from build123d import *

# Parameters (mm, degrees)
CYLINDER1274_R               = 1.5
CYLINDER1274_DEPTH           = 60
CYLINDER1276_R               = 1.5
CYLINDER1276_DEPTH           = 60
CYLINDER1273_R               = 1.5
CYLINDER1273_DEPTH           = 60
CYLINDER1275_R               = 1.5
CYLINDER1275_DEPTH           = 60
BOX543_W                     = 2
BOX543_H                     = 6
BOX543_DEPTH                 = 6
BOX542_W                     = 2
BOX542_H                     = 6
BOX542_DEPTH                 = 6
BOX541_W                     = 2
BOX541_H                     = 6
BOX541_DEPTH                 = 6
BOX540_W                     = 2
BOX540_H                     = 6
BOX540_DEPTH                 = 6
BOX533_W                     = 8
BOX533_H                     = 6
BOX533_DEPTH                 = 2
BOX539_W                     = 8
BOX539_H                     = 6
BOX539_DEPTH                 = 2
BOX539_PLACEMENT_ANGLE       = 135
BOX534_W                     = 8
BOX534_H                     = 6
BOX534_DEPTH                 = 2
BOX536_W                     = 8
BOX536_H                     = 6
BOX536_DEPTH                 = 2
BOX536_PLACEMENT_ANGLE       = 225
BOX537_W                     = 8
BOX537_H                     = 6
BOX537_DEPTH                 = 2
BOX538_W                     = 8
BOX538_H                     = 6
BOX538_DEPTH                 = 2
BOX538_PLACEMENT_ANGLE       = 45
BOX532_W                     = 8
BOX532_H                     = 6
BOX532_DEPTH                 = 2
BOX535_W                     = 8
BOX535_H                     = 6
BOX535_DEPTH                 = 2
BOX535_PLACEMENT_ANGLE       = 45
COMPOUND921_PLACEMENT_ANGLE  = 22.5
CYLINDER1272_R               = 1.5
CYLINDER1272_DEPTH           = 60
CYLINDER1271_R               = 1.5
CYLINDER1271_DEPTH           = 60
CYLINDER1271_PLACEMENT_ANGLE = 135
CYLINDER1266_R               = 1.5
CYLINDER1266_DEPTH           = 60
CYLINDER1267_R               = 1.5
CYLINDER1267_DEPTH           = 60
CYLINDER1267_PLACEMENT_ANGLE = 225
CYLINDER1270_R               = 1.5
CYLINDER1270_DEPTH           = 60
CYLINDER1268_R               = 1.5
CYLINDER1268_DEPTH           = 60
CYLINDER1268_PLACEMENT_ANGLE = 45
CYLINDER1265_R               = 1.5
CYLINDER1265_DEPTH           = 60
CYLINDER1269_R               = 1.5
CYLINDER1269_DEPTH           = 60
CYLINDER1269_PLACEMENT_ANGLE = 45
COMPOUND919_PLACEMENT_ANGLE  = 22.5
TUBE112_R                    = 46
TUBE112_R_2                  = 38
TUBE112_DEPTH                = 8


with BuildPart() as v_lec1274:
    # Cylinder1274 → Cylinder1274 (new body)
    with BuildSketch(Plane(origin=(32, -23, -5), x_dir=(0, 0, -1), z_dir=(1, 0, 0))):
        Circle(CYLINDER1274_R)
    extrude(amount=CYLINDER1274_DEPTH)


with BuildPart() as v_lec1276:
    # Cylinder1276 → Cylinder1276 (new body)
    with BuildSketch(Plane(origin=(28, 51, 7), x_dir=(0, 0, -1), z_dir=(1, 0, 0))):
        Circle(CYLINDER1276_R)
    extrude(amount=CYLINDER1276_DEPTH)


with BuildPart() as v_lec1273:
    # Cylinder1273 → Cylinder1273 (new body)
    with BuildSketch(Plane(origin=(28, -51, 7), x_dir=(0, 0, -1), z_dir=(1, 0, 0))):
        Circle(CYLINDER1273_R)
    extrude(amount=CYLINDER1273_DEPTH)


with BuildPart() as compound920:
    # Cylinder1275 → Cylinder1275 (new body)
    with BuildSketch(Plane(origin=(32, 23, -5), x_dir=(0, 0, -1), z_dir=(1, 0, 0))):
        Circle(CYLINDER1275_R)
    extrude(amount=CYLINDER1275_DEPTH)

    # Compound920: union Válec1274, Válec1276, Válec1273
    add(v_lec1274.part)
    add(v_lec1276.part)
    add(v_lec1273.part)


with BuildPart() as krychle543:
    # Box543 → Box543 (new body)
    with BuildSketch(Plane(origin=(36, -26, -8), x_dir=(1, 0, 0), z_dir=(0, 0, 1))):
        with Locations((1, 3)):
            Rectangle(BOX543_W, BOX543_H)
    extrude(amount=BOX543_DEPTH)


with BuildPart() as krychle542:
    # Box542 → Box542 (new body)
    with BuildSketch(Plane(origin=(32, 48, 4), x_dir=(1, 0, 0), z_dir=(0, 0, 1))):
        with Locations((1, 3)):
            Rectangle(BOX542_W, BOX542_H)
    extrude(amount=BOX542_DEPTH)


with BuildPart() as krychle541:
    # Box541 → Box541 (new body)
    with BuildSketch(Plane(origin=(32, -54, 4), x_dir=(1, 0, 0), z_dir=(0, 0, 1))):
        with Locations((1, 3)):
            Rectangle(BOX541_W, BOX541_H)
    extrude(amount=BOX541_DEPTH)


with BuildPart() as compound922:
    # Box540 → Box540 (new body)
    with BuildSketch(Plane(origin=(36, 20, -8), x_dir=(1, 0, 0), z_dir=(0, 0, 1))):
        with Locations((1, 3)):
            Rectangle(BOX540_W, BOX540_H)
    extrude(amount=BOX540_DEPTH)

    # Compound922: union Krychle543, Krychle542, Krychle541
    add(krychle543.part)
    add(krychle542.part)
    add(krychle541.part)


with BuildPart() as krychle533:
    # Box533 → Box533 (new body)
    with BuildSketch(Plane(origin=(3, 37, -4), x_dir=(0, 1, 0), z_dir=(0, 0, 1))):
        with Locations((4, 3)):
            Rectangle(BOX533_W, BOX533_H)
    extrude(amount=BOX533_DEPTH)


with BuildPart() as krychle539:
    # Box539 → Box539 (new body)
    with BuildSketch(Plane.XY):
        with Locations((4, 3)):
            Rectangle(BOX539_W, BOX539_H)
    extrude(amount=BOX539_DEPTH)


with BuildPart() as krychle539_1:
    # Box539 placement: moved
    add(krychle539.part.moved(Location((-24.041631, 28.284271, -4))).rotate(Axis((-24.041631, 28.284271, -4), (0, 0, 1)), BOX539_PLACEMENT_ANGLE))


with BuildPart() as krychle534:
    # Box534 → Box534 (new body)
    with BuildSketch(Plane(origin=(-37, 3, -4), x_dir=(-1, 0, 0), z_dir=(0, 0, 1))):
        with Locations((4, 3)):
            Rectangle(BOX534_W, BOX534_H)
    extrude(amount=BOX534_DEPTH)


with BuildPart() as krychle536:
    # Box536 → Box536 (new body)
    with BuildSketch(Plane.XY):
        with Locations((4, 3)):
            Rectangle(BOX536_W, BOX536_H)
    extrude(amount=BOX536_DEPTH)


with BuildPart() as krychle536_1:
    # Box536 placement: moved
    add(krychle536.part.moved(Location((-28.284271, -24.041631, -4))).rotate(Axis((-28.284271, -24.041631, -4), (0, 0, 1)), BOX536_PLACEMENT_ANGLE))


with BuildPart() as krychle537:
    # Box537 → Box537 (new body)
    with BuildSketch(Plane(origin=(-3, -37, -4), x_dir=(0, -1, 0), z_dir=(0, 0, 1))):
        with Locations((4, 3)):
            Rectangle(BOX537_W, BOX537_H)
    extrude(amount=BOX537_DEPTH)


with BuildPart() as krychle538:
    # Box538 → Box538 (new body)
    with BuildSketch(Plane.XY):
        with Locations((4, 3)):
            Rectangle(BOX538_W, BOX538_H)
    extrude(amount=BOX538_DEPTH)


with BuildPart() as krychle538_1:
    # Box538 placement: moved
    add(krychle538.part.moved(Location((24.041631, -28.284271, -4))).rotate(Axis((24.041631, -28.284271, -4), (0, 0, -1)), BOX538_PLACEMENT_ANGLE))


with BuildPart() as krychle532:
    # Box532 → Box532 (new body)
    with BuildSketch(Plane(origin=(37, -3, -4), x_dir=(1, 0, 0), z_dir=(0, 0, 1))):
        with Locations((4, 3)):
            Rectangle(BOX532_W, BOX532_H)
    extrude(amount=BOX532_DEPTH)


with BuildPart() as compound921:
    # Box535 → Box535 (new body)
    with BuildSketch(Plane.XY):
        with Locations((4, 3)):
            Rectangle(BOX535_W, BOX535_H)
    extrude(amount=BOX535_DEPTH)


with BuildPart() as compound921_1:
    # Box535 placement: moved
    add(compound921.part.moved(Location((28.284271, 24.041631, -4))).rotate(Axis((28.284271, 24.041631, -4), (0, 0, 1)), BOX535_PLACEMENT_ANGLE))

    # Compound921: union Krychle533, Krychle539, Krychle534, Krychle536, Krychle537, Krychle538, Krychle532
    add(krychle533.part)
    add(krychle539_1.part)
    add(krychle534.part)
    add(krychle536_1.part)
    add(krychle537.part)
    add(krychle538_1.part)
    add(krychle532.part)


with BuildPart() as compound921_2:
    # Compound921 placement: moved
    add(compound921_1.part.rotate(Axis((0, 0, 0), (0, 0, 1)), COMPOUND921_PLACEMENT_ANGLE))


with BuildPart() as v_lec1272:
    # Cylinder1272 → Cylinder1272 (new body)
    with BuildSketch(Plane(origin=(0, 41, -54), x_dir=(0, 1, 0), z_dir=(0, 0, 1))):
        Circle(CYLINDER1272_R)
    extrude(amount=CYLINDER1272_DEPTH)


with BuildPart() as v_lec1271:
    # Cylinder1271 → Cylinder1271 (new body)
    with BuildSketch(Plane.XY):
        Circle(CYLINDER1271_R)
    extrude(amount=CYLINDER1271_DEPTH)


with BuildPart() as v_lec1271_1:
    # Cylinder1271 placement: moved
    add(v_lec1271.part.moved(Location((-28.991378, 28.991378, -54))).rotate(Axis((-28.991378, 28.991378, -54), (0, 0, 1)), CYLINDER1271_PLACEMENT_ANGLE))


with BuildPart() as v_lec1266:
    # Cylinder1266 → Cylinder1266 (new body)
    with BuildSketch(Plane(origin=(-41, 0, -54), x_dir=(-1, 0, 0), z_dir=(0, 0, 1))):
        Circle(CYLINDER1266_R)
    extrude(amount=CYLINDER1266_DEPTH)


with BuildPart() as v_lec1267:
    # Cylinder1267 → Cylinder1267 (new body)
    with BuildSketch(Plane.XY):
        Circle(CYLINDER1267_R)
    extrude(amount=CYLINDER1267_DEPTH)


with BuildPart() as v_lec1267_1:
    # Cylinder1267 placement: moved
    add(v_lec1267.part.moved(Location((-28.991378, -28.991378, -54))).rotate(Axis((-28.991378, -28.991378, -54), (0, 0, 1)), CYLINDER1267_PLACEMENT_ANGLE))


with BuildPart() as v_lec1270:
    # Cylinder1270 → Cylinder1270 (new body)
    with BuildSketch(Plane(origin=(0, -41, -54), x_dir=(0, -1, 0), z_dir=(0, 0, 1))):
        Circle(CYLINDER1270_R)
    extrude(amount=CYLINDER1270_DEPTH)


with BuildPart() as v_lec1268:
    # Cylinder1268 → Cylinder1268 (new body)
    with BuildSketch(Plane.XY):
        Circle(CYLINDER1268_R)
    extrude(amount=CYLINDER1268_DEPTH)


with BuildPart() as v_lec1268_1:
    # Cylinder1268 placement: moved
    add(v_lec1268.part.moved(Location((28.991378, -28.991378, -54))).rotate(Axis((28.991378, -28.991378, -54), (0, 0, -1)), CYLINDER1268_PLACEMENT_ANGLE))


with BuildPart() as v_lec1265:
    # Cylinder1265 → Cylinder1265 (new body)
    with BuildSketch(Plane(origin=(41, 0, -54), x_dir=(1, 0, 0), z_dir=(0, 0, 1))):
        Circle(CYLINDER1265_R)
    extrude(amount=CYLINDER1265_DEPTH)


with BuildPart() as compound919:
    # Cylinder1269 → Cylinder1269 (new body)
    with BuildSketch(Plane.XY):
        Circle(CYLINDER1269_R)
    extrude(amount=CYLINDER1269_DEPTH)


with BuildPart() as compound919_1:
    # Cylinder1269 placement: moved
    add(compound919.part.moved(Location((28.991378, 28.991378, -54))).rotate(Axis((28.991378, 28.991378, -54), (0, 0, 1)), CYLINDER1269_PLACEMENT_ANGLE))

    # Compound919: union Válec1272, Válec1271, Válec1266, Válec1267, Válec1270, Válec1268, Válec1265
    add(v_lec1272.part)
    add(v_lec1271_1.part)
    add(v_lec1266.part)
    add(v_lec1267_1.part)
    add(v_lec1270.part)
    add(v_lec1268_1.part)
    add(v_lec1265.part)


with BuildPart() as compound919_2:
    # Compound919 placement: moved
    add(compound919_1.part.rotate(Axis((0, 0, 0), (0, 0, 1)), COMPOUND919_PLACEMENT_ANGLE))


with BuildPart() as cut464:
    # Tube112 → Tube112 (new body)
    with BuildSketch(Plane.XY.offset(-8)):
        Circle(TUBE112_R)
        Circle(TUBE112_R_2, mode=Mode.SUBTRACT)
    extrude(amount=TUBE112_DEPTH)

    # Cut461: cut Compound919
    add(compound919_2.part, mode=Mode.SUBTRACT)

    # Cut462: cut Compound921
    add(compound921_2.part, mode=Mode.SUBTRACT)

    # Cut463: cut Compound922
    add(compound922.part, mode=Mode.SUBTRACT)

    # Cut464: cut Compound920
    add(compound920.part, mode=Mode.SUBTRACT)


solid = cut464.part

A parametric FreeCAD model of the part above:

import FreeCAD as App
import Part
import Sketcher

doc = App.newDocument("Part")
body = doc.addObject("PartDesign::Body", "Body")

# Sketch on YZ plane
sketch1 = body.newObject("Sketcher::SketchObject", "Sketch")
sketch1.AttachmentSupport = (doc.getObject("YZ_Plane"), [""])
sketch1.MapMode = "FlatFace"
sketch1.AttachmentOffset = App.Placement(App.Vector(0, 0, 32), App.Rotation())
sketch1.addGeometry(Part.Circle(App.Vector(-23, -5, 0), App.Vector(0, 0, 1), 1.5), False)
sketch1.addConstraint([
    Sketcher.Constraint("Diameter", 0, 3.0),
    Sketcher.Constraint("DistanceX", 0, 3, -1, 1, 23.0),
    Sketcher.Constraint("DistanceY", 0, 3, -1, 1, 5.0),
])
pad1 = body.newObject("PartDesign::Pad", "Pad")
pad1.Profile = sketch1
pad1.Length = 60
body2 = doc.addObject("PartDesign::Body", "Body001")

# Sketch on YZ plane
sketch2 = body2.newObject("Sketcher::SketchObject", "Sketch001")
sketch2.AttachmentSupport = (doc.getObject("YZ_Plane001"), [""])
sketch2.MapMode = "FlatFace"
sketch2.AttachmentOffset = App.Placement(App.Vector(0, 0, 28), App.Rotation())
sketch2.addGeometry(Part.Circle(App.Vector(51, 7, 0), App.Vector(0, 0, 1), 1.5), False)
sketch2.addConstraint([
    Sketcher.Constraint("Diameter", 0, 3.0),
    Sketcher.Constraint("DistanceX", -1, 1, 0, 3, 51.0),
    Sketcher.Constraint("DistanceY", -1, 1, 0, 3, 7.0),
])
pad2 = body2.newObject("PartDesign::Pad", "Pad001")
pad2.Profile = sketch2
pad2.Length = 60
body3 = doc.addObject("PartDesign::Body", "Body002")

# Sketch on YZ plane
sketch3 = body3.newObject("Sketcher::SketchObject", "Sketch002")
sketch3.AttachmentSupport = (doc.getObject("YZ_Plane002"), [""])
sketch3.MapMode = "FlatFace"
sketch3.AttachmentOffset = App.Placement(App.Vector(0, 0, 28), App.Rotation())
sketch3.addGeometry(Part.Circle(App.Vector(-51, 7, 0), App.Vector(0, 0, 1), 1.5), False)
sketch3.addConstraint([
    Sketcher.Constraint("Diameter", 0, 3.0),
    Sketcher.Constraint("DistanceX", 0, 3, -1, 1, 51.0),
    Sketcher.Constraint("DistanceY", -1, 1, 0, 3, 7.0),
])
pad3 = body3.newObject("PartDesign::Pad", "Pad002")
pad3.Profile = sketch3
pad3.Length = 60
body4 = doc.addObject("PartDesign::Body", "Body003")
body4.AllowCompound = True

# Sketch on YZ plane
sketch4 = body4.newObject("Sketcher::SketchObject", "Sketch003")
sketch4.AttachmentSupport = (doc.getObject("YZ_Plane003"), [""])
sketch4.MapMode = "FlatFace"
sketch4.AttachmentOffset = App.Placement(App.Vector(0, 0, 32), App.Rotation())
sketch4.addGeometry(Part.Circle(App.Vector(23, -5, 0), App.Vector(0, 0, 1), 1.5), False)
sketch4.addConstraint([
    Sketcher.Constraint("Diameter", 0, 3.0),
    Sketcher.Constraint("DistanceX", -1, 1, 0, 3, 23.0),
    Sketcher.Constraint("DistanceY", 0, 3, -1, 1, 5.0),
])
pad4 = body4.newObject("PartDesign::Pad", "Pad003")
pad4.Profile = sketch4
pad4.Length = 60
doc.recompute()

boolean = body4.newObject("PartDesign::Boolean", "Boolean")
boolean.Type = "Fuse"
boolean.addObjects([body])
doc.recompute()

boolean2 = body4.newObject("PartDesign::Boolean", "Boolean001")
boolean2.Type = "Fuse"
boolean2.addObjects([body2])
doc.recompute()

boolean3 = body4.newObject("PartDesign::Boolean", "Boolean002")
boolean3.Type = "Fuse"
boolean3.addObjects([body3])
body5 = doc.addObject("PartDesign::Body", "Body004")

# Sketch on XY plane
sketch5 = body5.newObject("Sketcher::SketchObject", "Sketch004")
sketch5.AttachmentSupport = (doc.getObject("XY_Plane004"), [""])
sketch5.MapMode = "FlatFace"
sketch5.AttachmentOffset = App.Placement(App.Vector(0, 0, -8), App.Rotation())
sketch5.addGeometry([
    Part.LineSegment(App.Vector(36, -20, 0), App.Vector(36, -26, 0)),
    Part.LineSegment(App.Vector(36, -26, 0), App.Vector(38, -26, 0)),
    Part.LineSegment(App.Vector(38, -26, 0), App.Vector(38, -20, 0)),
    Part.LineSegment(App.Vector(38, -20, 0), App.Vector(36, -20, 0)),
], False)
sketch5.addConstraint([
    Sketcher.Constraint("Coincident", 0, 2, 1, 1),
    Sketcher.Constraint("Coincident", 1, 2, 2, 1),
    Sketcher.Constraint("Coincident", 2, 2, 3, 1),
    Sketcher.Constraint("Coincident", 3, 2, 0, 1),
    Sketcher.Constraint("Vertical", 0),
    Sketcher.Constraint("Horizontal", 1),
    Sketcher.Constraint("Vertical", 2),
    Sketcher.Constraint("Horizontal", 3),
    Sketcher.Constraint("DistanceX", 1, 1, 1, 2, 2.0),
    Sketcher.Constraint("DistanceY", 0, 2, 0, 1, 6.0),
    Sketcher.Constraint("DistanceX", -1, 1, 0, 2, 36.0),
    Sketcher.Constraint("DistanceY", 0, 2, -1, 1, 26.0),
])
pad5 = body5.newObject("PartDesign::Pad", "Pad004")
pad5.Profile = sketch5
pad5.Length = 6
body6 = doc.addObject("PartDesign::Body", "Body005")

# Sketch on XY plane
sketch6 = body6.newObject("Sketcher::SketchObject", "Sketch005")
sketch6.AttachmentSupport = (doc.getObject("XY_Plane005"), [""])
sketch6.MapMode = "FlatFace"
sketch6.AttachmentOffset = App.Placement(App.Vector(0, 0, 4), App.Rotation())
sketch6.addGeometry([
    Part.LineSegment(App.Vector(32, 54, 0), App.Vector(32, 48, 0)),
    Part.LineSegment(App.Vector(32, 48, 0), App.Vector(34, 48, 0)),
    Part.LineSegment(App.Vector(34, 48, 0), App.Vector(34, 54, 0)),
    Part.LineSegment(App.Vector(34, 54, 0), App.Vector(32, 54, 0)),
], False)
sketch6.addConstraint([
    Sketcher.Constraint("Coincident", 0, 2, 1, 1),
    Sketcher.Constraint("Coincident", 1, 2, 2, 1),
    Sketcher.Constraint("Coincident", 2, 2, 3, 1),
    Sketcher.Constraint("Coincident", 3, 2, 0, 1),
    Sketcher.Constraint("Vertical", 0),
    Sketcher.Constraint("Horizontal", 1),
    Sketcher.Constraint("Vertical", 2),
    Sketcher.Constraint("Horizontal", 3),
    Sketcher.Constraint("DistanceX", 1, 1, 1, 2, 2.0),
    Sketcher.Constraint("DistanceY", 0, 2, 0, 1, 6.0),
    Sketcher.Constraint("DistanceX", -1, 1, 0, 2, 32.0),
    Sketcher.Constraint("DistanceY", -1, 1, 0, 2, 48.0),
])
pad6 = body6.newObject("PartDesign::Pad", "Pad005")
pad6.Profile = sketch6
pad6.Length = 6
body7 = doc.addObject("PartDesign::Body", "Body006")

# Sketch on XY plane
sketch7 = body7.newObject("Sketcher::SketchObject", "Sketch006")
sketch7.AttachmentSupport = (doc.getObject("XY_Plane006"), [""])
sketch7.MapMode = "FlatFace"
sketch7.AttachmentOffset = App.Placement(App.Vector(0, 0, 4), App.Rotation())
sketch7.addGeometry([
    Part.LineSegment(App.Vector(32, -48, 0), App.Vector(32, -54, 0)),
    Part.LineSegment(App.Vector(32, -54, 0), App.Vector(34, -54, 0)),
    Part.LineSegment(App.Vector(34, -54, 0), App.Vector(34, -48, 0)),
    Part.LineSegment(App.Vector(34, -48, 0), App.Vector(32, -48, 0)),
], False)
sketch7.addConstraint([
    Sketcher.Constraint("Coincident", 0, 2, 1, 1),
    Sketcher.Constraint("Coincident", 1, 2, 2, 1),
    Sketcher.Constraint("Coincident", 2, 2, 3, 1),
    Sketcher.Constraint("Coincident", 3, 2, 0, 1),
    Sketcher.Constraint("Vertical", 0),
    Sketcher.Constraint("Horizontal", 1),
    Sketcher.Constraint("Vertical", 2),
    Sketcher.Constraint("Horizontal", 3),
    Sketcher.Constraint("DistanceX", 1, 1, 1, 2, 2.0),
    Sketcher.Constraint("DistanceY", 0, 2, 0, 1, 6.0),
    Sketcher.Constraint("DistanceX", -1, 1, 0, 2, 32.0),
    Sketcher.Constraint("DistanceY", 0, 2, -1, 1, 54.0),
])
pad7 = body7.newObject("PartDesign::Pad", "Pad006")
pad7.Profile = sketch7
pad7.Length = 6
body8 = doc.addObject("PartDesign::Body", "Body007")
body8.AllowCompound = True

# Sketch on XY plane
sketch8 = body8.newObject("Sketcher::SketchObject", "Sketch007")
sketch8.AttachmentSupport = (doc.getObject("XY_Plane007"), [""])
sketch8.MapMode = "FlatFace"
sketch8.AttachmentOffset = App.Placement(App.Vector(0, 0, -8), App.Rotation())
sketch8.addGeometry([
    Part.LineSegment(App.Vector(36, 26, 0), App.Vector(36, 20, 0)),
    Part.LineSegment(App.Vector(36, 20, 0), App.Vector(38, 20, 0)),
    Part.LineSegment(App.Vector(38, 20, 0), App.Vector(38, 26, 0)),
    Part.LineSegment(App.Vector(38, 26, 0), App.Vector(36, 26, 0)),
], False)
sketch8.addConstraint([
    Sketcher.Constraint("Coincident", 0, 2, 1, 1),
    Sketcher.Constraint("Coincident", 1, 2, 2, 1),
    Sketcher.Constraint("Coincident", 2, 2, 3, 1),
    Sketcher.Constraint("Coincident", 3, 2, 0, 1),
    Sketcher.Constraint("Vertical", 0),
    Sketcher.Constraint("Horizontal", 1),
    Sketcher.Constraint("Vertical", 2),
    Sketcher.Constraint("Horizontal", 3),
    Sketcher.Constraint("DistanceX", 1, 1, 1, 2, 2.0),
    Sketcher.Constraint("DistanceY", 0, 2, 0, 1, 6.0),
    Sketcher.Constraint("DistanceX", -1, 1, 0, 2, 36.0),
    Sketcher.Constraint("DistanceY", -1, 1, 0, 2, 20.0),
])
pad8 = body8.newObject("PartDesign::Pad", "Pad007")
pad8.Profile = sketch8
pad8.Length = 6
doc.recompute()

boolean4 = body8.newObject("PartDesign::Boolean", "Boolean003")
boolean4.Type = "Fuse"
boolean4.addObjects([body5])
doc.recompute()

boolean5 = body8.newObject("PartDesign::Boolean", "Boolean004")
boolean5.Type = "Fuse"
boolean5.addObjects([body6])
doc.recompute()

boolean6 = body8.newObject("PartDesign::Boolean", "Boolean005")
boolean6.Type = "Fuse"
boolean6.addObjects([body7])
body9 = doc.addObject("PartDesign::Body", "Body008")

# Sketch on XY plane
sketch9 = body9.newObject("Sketcher::SketchObject", "Sketch008")
sketch9.AttachmentSupport = (doc.getObject("XY_Plane008"), [""])
sketch9.MapMode = "FlatFace"
sketch9.AttachmentOffset = App.Placement(App.Vector(0, 0, -4), App.Rotation())
sketch9.addGeometry([
    Part.LineSegment(App.Vector(-3, 37, 0), App.Vector(3, 37, 0)),
    Part.LineSegment(App.Vector(3, 37, 0), App.Vector(3, 45, 0)),
    Part.LineSegment(App.Vector(3, 45, 0), App.Vector(-3, 45, 0)),
    Part.LineSegment(App.Vector(-3, 45, 0), App.Vector(-3, 37, 0)),
], False)
sketch9.addConstraint([
    Sketcher.Constraint("Coincident", 0, 2, 1, 1),
    Sketcher.Constraint("Coincident", 1, 2, 2, 1),
    Sketcher.Constraint("Coincident", 2, 2, 3, 1),
    Sketcher.Constraint("Coincident", 3, 2, 0, 1),
    Sketcher.Constraint("Horizontal", 0),
    Sketcher.Constraint("Vertical", 1),
    Sketcher.Constraint("Horizontal", 2),
    Sketcher.Constraint("Vertical", 3),
    Sketcher.Constraint("DistanceX", 0, 1, 0, 2, 6.0),
    Sketcher.Constraint("DistanceY", 1, 1, 1, 2, 8.0),
    Sketcher.Constraint("DistanceX", -1, 1, 0, 2, 3.0),
    Sketcher.Constraint("DistanceY", -1, 1, 0, 2, 37.0),
])
pad9 = body9.newObject("PartDesign::Pad", "Pad008")
pad9.Profile = sketch9
pad9.Length = 2
body10 = doc.addObject("PartDesign::Body", "Body009")

# Sketch on XY plane
sketch10 = body10.newObject("Sketcher::SketchObject", "Sketch009")
sketch10.AttachmentSupport = (doc.getObject("XY_Plane009"), [""])
sketch10.MapMode = "FlatFace"
sketch10.addGeometry([
    Part.LineSegment(App.Vector(0, 6, 0), App.Vector(0, 0, 0)),
    Part.LineSegment(App.Vector(0, 0, 0), App.Vector(8, 0, 0)),
    Part.LineSegment(App.Vector(8, 0, 0), App.Vector(8, 6, 0)),
    Part.LineSegment(App.Vector(8, 6, 0), App.Vector(0, 6, 0)),
], False)
sketch10.addConstraint([
    Sketcher.Constraint("Coincident", 0, 2, 1, 1),
    Sketcher.Constraint("Coincident", 1, 2, 2, 1),
    Sketcher.Constraint("Coincident", 2, 2, 3, 1),
    Sketcher.Constraint("Coincident", 3, 2, 0, 1),
    Sketcher.Constraint("Vertical", 0),
    Sketcher.Constraint("Horizontal", 1),
    Sketcher.Constraint("Vertical", 2),
    Sketcher.Constraint("Horizontal", 3),
    Sketcher.Constraint("Coincident", 0, 2, -1, 1),
    Sketcher.Constraint("DistanceX", 1, 1, 1, 2, 8.0),
    Sketcher.Constraint("DistanceY", 0, 2, 0, 1, 6.0),
])
pad10 = body10.newObject("PartDesign::Pad", "Pad009")
pad10.Profile = sketch10
pad10.Length = 2
body11 = doc.addObject("PartDesign::Body", "Body010")
doc.recompute()

body10.Placement = App.Placement(App.Vector(-24.041631, 28.284271, -4), App.Rotation(App.Vector(0, 0, 1), 135))
boolean7 = body11.newObject("PartDesign::Boolean", "Boolean006")
boolean7.Type = "Fuse"
boolean7.addObjects([body10])
body12 = doc.addObject("PartDesign::Body", "Body011")

# Sketch on XY plane
sketch11 = body12.newObject("Sketcher::SketchObject", "Sketch010")
sketch11.AttachmentSupport = (doc.getObject("XY_Plane011"), [""])
sketch11.MapMode = "FlatFace"
sketch11.AttachmentOffset = App.Placement(App.Vector(0, 0, -4), App.Rotation())
sketch11.addGeometry([
    Part.LineSegment(App.Vector(-37, -3, 0), App.Vector(-37, 3, 0)),
    Part.LineSegment(App.Vector(-37, 3, 0), App.Vector(-45, 3, 0)),
    Part.LineSegment(App.Vector(-45, 3, 0), App.Vector(-45, -3, 0)),
    Part.LineSegment(App.Vector(-45, -3, 0), App.Vector(-37, -3, 0)),
], False)
sketch11.addConstraint([
    Sketcher.Constraint("Coincident", 0, 2, 1, 1),
    Sketcher.Constraint("Coincident", 1, 2, 2, 1),
    Sketcher.Constraint("Coincident", 2, 2, 3, 1),
    Sketcher.Constraint("Coincident", 3, 2, 0, 1),
    Sketcher.Constraint("Vertical", 0),
    Sketcher.Constraint("Horizontal", 1),
    Sketcher.Constraint("Vertical", 2),
    Sketcher.Constraint("Horizontal", 3),
    Sketcher.Constraint("DistanceX", 1, 2, 1, 1, 8.0),
    Sketcher.Constraint("DistanceY", 0, 1, 0, 2, 6.0),
    Sketcher.Constraint("DistanceX", 0, 2, -1, 1, 37.0),
    Sketcher.Constraint("DistanceY", -1, 1, 0, 2, 3.0),
])
pad11 = body12.newObject("PartDesign::Pad", "Pad010")
pad11.Profile = sketch11
pad11.Length = 2
body13 = doc.addObject("PartDesign::Body", "Body012")

# Sketch on XY plane
sketch12 = body13.newObject("Sketcher::SketchObject", "Sketch011")
sketch12.AttachmentSupport = (doc.getObject("XY_Plane012"), [""])
sketch12.MapMode = "FlatFace"
sketch12.addGeometry([
    Part.LineSegment(App.Vector(0, 6, 0), App.Vector(0, 0, 0)),
    Part.LineSegment(App.Vector(0, 0, 0), App.Vector(8, 0, 0)),
    Part.LineSegment(App.Vector(8, 0, 0), App.Vector(8, 6, 0)),
    Part.LineSegment(App.Vector(8, 6, 0), App.Vector(0, 6, 0)),
], False)
sketch12.addConstraint([
    Sketcher.Constraint("Coincident", 0, 2, 1, 1),
    Sketcher.Constraint("Coincident", 1, 2, 2, 1),
    Sketcher.Constraint("Coincident", 2, 2, 3, 1),
    Sketcher.Constraint("Coincident", 3, 2, 0, 1),
    Sketcher.Constraint("Vertical", 0),
    Sketcher.Constraint("Horizontal", 1),
    Sketcher.Constraint("Vertical", 2),
    Sketcher.Constraint("Horizontal", 3),
    Sketcher.Constraint("Coincident", 0, 2, -1, 1),
    Sketcher.Constraint("DistanceX", 1, 1, 1, 2, 8.0),
    Sketcher.Constraint("DistanceY", 0, 2, 0, 1, 6.0),
])
pad12 = body13.newObject("PartDesign::Pad", "Pad011")
pad12.Profile = sketch12
pad12.Length = 2
body14 = doc.addObject("PartDesign::Body", "Body013")
doc.recompute()

body13.Placement = App.Placement(App.Vector(-28.284271, -24.041631, -4), App.Rotation(App.Vector(0, 0, 1), 225))
boolean8 = body14.newObject("PartDesign::Boolean", "Boolean007")
boolean8.Type = "Fuse"
boolean8.addObjects([body13])
body15 = doc.addObject("PartDesign::Body", "Body014")

# Sketch on XY plane
sketch13 = body15.newObject("Sketcher::SketchObject", "Sketch012")
sketch13.AttachmentSupport = (doc.getObject("XY_Plane014"), [""])
sketch13.MapMode = "FlatFace"
sketch13.AttachmentOffset = App.Placement(App.Vector(0, 0, -4), App.Rotation())
sketch13.addGeometry([
    Part.LineSegment(App.Vector(3, -37, 0), App.Vector(-3, -37, 0)),
    Part.LineSegment(App.Vector(-3, -37, 0), App.Vector(-3, -45, 0)),
    Part.LineSegment(App.Vector(-3, -45, 0), App.Vector(3, -45, 0)),
    Part.LineSegment(App.Vector(3, -45, 0), App.Vector(3, -37, 0)),
], False)
sketch13.addConstraint([
    Sketcher.Constraint("Coincident", 0, 2, 1, 1),
    Sketcher.Constraint("Coincident", 1, 2, 2, 1),
    Sketcher.Constraint("Coincident", 2, 2, 3, 1),
    Sketcher.Constraint("Coincident", 3, 2, 0, 1),
    Sketcher.Constraint("Horizontal", 0),
    Sketcher.Constraint("Vertical", 1),
    Sketcher.Constraint("Horizontal", 2),
    Sketcher.Constraint("Vertical", 3),
    Sketcher.Constraint("DistanceX", 0, 2, 0, 1, 6.0),
    Sketcher.Constraint("DistanceY", 1, 2, 1, 1, 8.0),
    Sketcher.Constraint("DistanceX", 0, 2, -1, 1, 3.0),
    Sketcher.Constraint("DistanceY", 0, 2, -1, 1, 37.0),
])
pad13 = body15.newObject("PartDesign::Pad", "Pad012")
pad13.Profile = sketch13
pad13.Length = 2
body16 = doc.addObject("PartDesign::Body", "Body015")

# Sketch on XY plane
sketch14 = body16.newObject("Sketcher::SketchObject", "Sketch013")
sketch14.AttachmentSupport = (doc.getObject("XY_Plane015"), [""])
sketch14.MapMode = "FlatFace"
sketch14.addGeometry([
    Part.LineSegment(App.Vector(0, 6, 0), App.Vector(0, 0, 0)),
    Part.LineSegment(App.Vector(0, 0, 0), App.Vector(8, 0, 0)),
    Part.LineSegment(App.Vector(8, 0, 0), App.Vector(8, 6, 0)),
    Part.LineSegment(App.Vector(8, 6, 0), App.Vector(0, 6, 0)),
], False)
sketch14.addConstraint([
    Sketcher.Constraint("Coincident", 0, 2, 1, 1),
    Sketcher.Constraint("Coincident", 1, 2, 2, 1),
    Sketcher.Constraint("Coincident", 2, 2, 3, 1),
    Sketcher.Constraint("Coincident", 3, 2, 0, 1),
    Sketcher.Constraint("Vertical", 0),
    Sketcher.Constraint("Horizontal", 1),
    Sketcher.Constraint("Vertical", 2),
    Sketcher.Constraint("Horizontal", 3),
    Sketcher.Constraint("Coincident", 0, 2, -1, 1),
    Sketcher.Constraint("DistanceX", 1, 1, 1, 2, 8.0),
    Sketcher.Constraint("DistanceY", 0, 2, 0, 1, 6.0),
])
pad14 = body16.newObject("PartDesign::Pad", "Pad013")
pad14.Profile = sketch14
pad14.Length = 2
body17 = doc.addObject("PartDesign::Body", "Body016")
doc.recompute()

body16.Placement = App.Placement(App.Vector(24.041631, -28.284271, -4), App.Rotation(App.Vector(0, 0, -1), 45))
boolean9 = body17.newObject("PartDesign::Boolean", "Boolean008")
boolean9.Type = "Fuse"
boolean9.addObjects([body16])
body18 = doc.addObject("PartDesign::Body", "Body017")

# Sketch on XY plane
sketch15 = body18.newObject("Sketcher::SketchObject", "Sketch014")
sketch15.AttachmentSupport = (doc.getObject("XY_Plane017"), [""])
sketch15.MapMode = "FlatFace"
sketch15.AttachmentOffset = App.Placement(App.Vector(0, 0, -4), App.Rotation())
sketch15.addGeometry([
    Part.LineSegment(App.Vector(37, 3, 0), App.Vector(37, -3, 0)),
    Part.LineSegment(App.Vector(37, -3, 0), App.Vector(45, -3, 0)),
    Part.LineSegment(App.Vector(45, -3, 0), App.Vector(45, 3, 0)),
    Part.LineSegment(App.Vector(45, 3, 0), App.Vector(37, 3, 0)),
], False)
sketch15.addConstraint([
    Sketcher.Constraint("Coincident", 0, 2, 1, 1),
    Sketcher.Constraint("Coincident", 1, 2, 2, 1),
    Sketcher.Constraint("Coincident", 2, 2, 3, 1),
    Sketcher.Constraint("Coincident", 3, 2, 0, 1),
    Sketcher.Constraint("Vertical", 0),
    Sketcher.Constraint("Horizontal", 1),
    Sketcher.Constraint("Vertical", 2),
    Sketcher.Constraint("Horizontal", 3),
    Sketcher.Constraint("DistanceX", 1, 1, 1, 2, 8.0),
    Sketcher.Constraint("DistanceY", 0, 2, 0, 1, 6.0),
    Sketcher.Constraint("DistanceX", -1, 1, 0, 2, 37.0),
    Sketcher.Constraint("DistanceY", 0, 2, -1, 1, 3.0),
])
pad15 = body18.newObject("PartDesign::Pad", "Pad014")
pad15.Profile = sketch15
pad15.Length = 2
body19 = doc.addObject("PartDesign::Body", "Body018")

# Sketch on XY plane
sketch16 = body19.newObject("Sketcher::SketchObject", "Sketch015")
sketch16.AttachmentSupport = (doc.getObject("XY_Plane018"), [""])
sketch16.MapMode = "FlatFace"
sketch16.addGeometry([
    Part.LineSegment(App.Vector(0, 6, 0), App.Vector(0, 0, 0)),
    Part.LineSegment(App.Vector(0, 0, 0), App.Vector(8, 0, 0)),
    Part.LineSegment(App.Vector(8, 0, 0), App.Vector(8, 6, 0)),
    Part.LineSegment(App.Vector(8, 6, 0), App.Vector(0, 6, 0)),
], False)
sketch16.addConstraint([
    Sketcher.Constraint("Coincident", 0, 2, 1, 1),
    Sketcher.Constraint("Coincident", 1, 2, 2, 1),
    Sketcher.Constraint("Coincident", 2, 2, 3, 1),
    Sketcher.Constraint("Coincident", 3, 2, 0, 1),
    Sketcher.Constraint("Vertical", 0),
    Sketcher.Constraint("Horizontal", 1),
    Sketcher.Constraint("Vertical", 2),
    Sketcher.Constraint("Horizontal", 3),
    Sketcher.Constraint("Coincident", 0, 2, -1, 1),
    Sketcher.Constraint("DistanceX", 1, 1, 1, 2, 8.0),
    Sketcher.Constraint("DistanceY", 0, 2, 0, 1, 6.0),
])
pad16 = body19.newObject("PartDesign::Pad", "Pad015")
pad16.Profile = sketch16
pad16.Length = 2
body20 = doc.addObject("PartDesign::Body", "Body019")
body20.AllowCompound = True
doc.recompute()

body19.Placement = App.Placement(App.Vector(28.284271, 24.041631, -4), App.Rotation(App.Vector(0, 0, 1), 45))
boolean10 = body20.newObject("PartDesign::Boolean", "Boolean009")
boolean10.Type = "Fuse"
boolean10.addObjects([body19])
doc.recompute()

boolean11 = body20.newObject("PartDesign::Boolean", "Boolean010")
boolean11.Type = "Fuse"
boolean11.addObjects([body9])
doc.recompute()

boolean12 = body20.newObject("PartDesign::Boolean", "Boolean011")
boolean12.Type = "Fuse"
boolean12.addObjects([body11])
doc.recompute()

boolean13 = body20.newObject("PartDesign::Boolean", "Boolean012")
boolean13.Type = "Fuse"
boolean13.addObjects([body12])
doc.recompute()

boolean14 = body20.newObject("PartDesign::Boolean", "Boolean013")
boolean14.Type = "Fuse"
boolean14.addObjects([body14])
doc.recompute()

boolean15 = body20.newObject("PartDesign::Boolean", "Boolean014")
boolean15.Type = "Fuse"
boolean15.addObjects([body15])
doc.recompute()

boolean16 = body20.newObject("PartDesign::Boolean", "Boolean015")
boolean16.Type = "Fuse"
boolean16.addObjects([body17])
doc.recompute()

boolean17 = body20.newObject("PartDesign::Boolean", "Boolean016")
boolean17.Type = "Fuse"
boolean17.addObjects([body18])
body21 = doc.addObject("PartDesign::Body", "Body020")
body21.AllowCompound = True
doc.recompute()

body20.Placement = App.Placement(App.Vector(0, 0, 0), App.Rotation(App.Vector(0, 0, 1), 22.5))
boolean18 = body21.newObject("PartDesign::Boolean", "Boolean017")
boolean18.Type = "Fuse"
boolean18.addObjects([body20])
body22 = doc.addObject("PartDesign::Body", "Body021")

# Sketch on XY plane
sketch17 = body22.newObject("Sketcher::SketchObject", "Sketch016")
sketch17.AttachmentSupport = (doc.getObject("XY_Plane021"), [""])
sketch17.MapMode = "FlatFace"
sketch17.AttachmentOffset = App.Placement(App.Vector(0, 0, -54), App.Rotation())
sketch17.addGeometry(Part.Circle(App.Vector(0, 41, 0), App.Vector(0, 0, 1), 1.5), False)
sketch17.addConstraint([
    Sketcher.Constraint("PointOnObject", 0, 3, -2),
    Sketcher.Constraint("Diameter", 0, 3.0),
    Sketcher.Constraint("DistanceY", -1, 1, 0, 3, 41.0),
])
pad17 = body22.newObject("PartDesign::Pad", "Pad016")
pad17.Profile = sketch17
pad17.Length = 60
body23 = doc.addObject("PartDesign::Body", "Body022")

# Sketch on XY plane
sketch18 = body23.newObject("Sketcher::SketchObject", "Sketch017")
sketch18.AttachmentSupport = (doc.getObject("XY_Plane022"), [""])
sketch18.MapMode = "FlatFace"
sketch18.addGeometry(Part.Circle(App.Vector(0, 0, 0), App.Vector(0, 0, 1), 1.5), False)
sketch18.addConstraint([
    Sketcher.Constraint("Coincident", 0, 3, -1, 1),
    Sketcher.Constraint("Diameter", 0, 3.0),
])
pad18 = body23.newObject("PartDesign::Pad", "Pad017")
pad18.Profile = sketch18
pad18.Length = 60
body24 = doc.addObject("PartDesign::Body", "Body023")
doc.recompute()

body23.Placement = App.Placement(App.Vector(-28.991378, 28.991378, -54), App.Rotation(App.Vector(0, 0, 1), 135))
boolean19 = body24.newObject("PartDesign::Boolean", "Boolean018")
boolean19.Type = "Fuse"
boolean19.addObjects([body23])
body25 = doc.addObject("PartDesign::Body", "Body024")

# Sketch on XY plane
sketch19 = body25.newObject("Sketcher::SketchObject", "Sketch018")
sketch19.AttachmentSupport = (doc.getObject("XY_Plane024"), [""])
sketch19.MapMode = "FlatFace"
sketch19.AttachmentOffset = App.Placement(App.Vector(0, 0, -54), App.Rotation())
sketch19.addGeometry(Part.Circle(App.Vector(-41, 0, 0), App.Vector(0, 0, 1), 1.5), False)
sketch19.addConstraint([
    Sketcher.Constraint("PointOnObject", 0, 3, -1),
    Sketcher.Constraint("Diameter", 0, 3.0),
    Sketcher.Constraint("DistanceX", 0, 3, -1, 1, 41.0),
])
pad19 = body25.newObject("PartDesign::Pad", "Pad018")
pad19.Profile = sketch19
pad19.Length = 60
body26 = doc.addObject("PartDesign::Body", "Body025")

# Sketch on XY plane
sketch20 = body26.newObject("Sketcher::SketchObject", "Sketch019")
sketch20.AttachmentSupport = (doc.getObject("XY_Plane025"), [""])
sketch20.MapMode = "FlatFace"
sketch20.addGeometry(Part.Circle(App.Vector(0, 0, 0), App.Vector(0, 0, 1), 1.5), False)
sketch20.addConstraint([
    Sketcher.Constraint("Coincident", 0, 3, -1, 1),
    Sketcher.Constraint("Diameter", 0, 3.0),
])
pad20 = body26.newObject("PartDesign::Pad", "Pad019")
pad20.Profile = sketch20
pad20.Length = 60
body27 = doc.addObject("PartDesign::Body", "Body026")
doc.recompute()

body26.Placement = App.Placement(App.Vector(-28.991378, -28.991378, -54), App.Rotation(App.Vector(0, 0, 1), 225))
boolean20 = body27.newObject("PartDesign::Boolean", "Boolean019")
boolean20.Type = "Fuse"
boolean20.addObjects([body26])
body28 = doc.addObject("PartDesign::Body", "Body027")

# Sketch on XY plane
sketch21 = body28.newObject("Sketcher::SketchObject", "Sketch020")
sketch21.AttachmentSupport = (doc.getObject("XY_Plane027"), [""])
sketch21.MapMode = "FlatFace"
sketch21.AttachmentOffset = App.Placement(App.Vector(0, 0, -54), App.Rotation())
sketch21.addGeometry(Part.Circle(App.Vector(0, -41, 0), App.Vector(0, 0, 1), 1.5), False)
sketch21.addConstraint([
    Sketcher.Constraint("PointOnObject", 0, 3, -2),
    Sketcher.Constraint("Diameter", 0, 3.0),
    Sketcher.Constraint("DistanceY", 0, 3, -1, 1, 41.0),
])
pad21 = body28.newObject("PartDesign::Pad", "Pad020")
pad21.Profile = sketch21
pad21.Length = 60
body29 = doc.addObject("PartDesign::Body", "Body028")

# Sketch on XY plane
sketch22 = body29.newObject("Sketcher::SketchObject", "Sketch021")
sketch22.AttachmentSupport = (doc.getObject("XY_Plane028"), [""])
sketch22.MapMode = "FlatFace"
sketch22.addGeometry(Part.Circle(App.Vector(0, 0, 0), App.Vector(0, 0, 1), 1.5), False)
sketch22.addConstraint([
    Sketcher.Constraint("Coincident", 0, 3, -1, 1),
    Sketcher.Constraint("Diameter", 0, 3.0),
])
pad22 = body29.newObject("PartDesign::Pad", "Pad021")
pad22.Profile = sketch22
pad22.Length = 60
body30 = doc.addObject("PartDesign::Body", "Body029")
doc.recompute()

body29.Placement = App.Placement(App.Vector(28.991378, -28.991378, -54), App.Rotation(App.Vector(0, 0, -1), 45))
boolean21 = body30.newObject("PartDesign::Boolean", "Boolean020")
boolean21.Type = "Fuse"
boolean21.addObjects([body29])
body31 = doc.addObject("PartDesign::Body", "Body030")

# Sketch on XY plane
sketch23 = body31.newObject("Sketcher::SketchObject", "Sketch022")
sketch23.AttachmentSupport = (doc.getObject("XY_Plane030"), [""])
sketch23.MapMode = "FlatFace"
sketch23.AttachmentOffset = App.Placement(App.Vector(0, 0, -54), App.Rotation())
sketch23.addGeometry(Part.Circle(App.Vector(41, 0, 0), App.Vector(0, 0, 1), 1.5), False)
sketch23.addConstraint([
    Sketcher.Constraint("PointOnObject", 0, 3, -1),
    Sketcher.Constraint("Diameter", 0, 3.0),
    Sketcher.Constraint("DistanceX", -1, 1, 0, 3, 41.0),
])
pad23 = body31.newObject("PartDesign::Pad", "Pad022")
pad23.Profile = sketch23
pad23.Length = 60
body32 = doc.addObject("PartDesign::Body", "Body031")

# Sketch on XY plane
sketch24 = body32.newObject("Sketcher::SketchObject", "Sketch023")
sketch24.AttachmentSupport = (doc.getObject("XY_Plane031"), [""])
sketch24.MapMode = "FlatFace"
sketch24.addGeometry(Part.Circle(App.Vector(0, 0, 0), App.Vector(0, 0, 1), 1.5), False)
sketch24.addConstraint([
    Sketcher.Constraint("Coincident", 0, 3, -1, 1),
    Sketcher.Constraint("Diameter", 0, 3.0),
])
pad24 = body32.newObject("PartDesign::Pad", "Pad023")
pad24.Profile = sketch24
pad24.Length = 60
body33 = doc.addObject("PartDesign::Body", "Body032")
body33.AllowCompound = True
doc.recompute()

body32.Placement = App.Placement(App.Vector(28.991378, 28.991378, -54), App.Rotation(App.Vector(0, 0, 1), 45))
boolean22 = body33.newObject("PartDesign::Boolean", "Boolean021")
boolean22.Type = "Fuse"
boolean22.addObjects([body32])
doc.recompute()

boolean23 = body33.newObject("PartDesign::Boolean", "Boolean022")
boolean23.Type = "Fuse"
boolean23.addObjects([body22])
doc.recompute()

boolean24 = body33.newObject("PartDesign::Boolean", "Boolean023")
boolean24.Type = "Fuse"
boolean24.addObjects([body24])
doc.recompute()

boolean25 = body33.newObject("PartDesign::Boolean", "Boolean024")
boolean25.Type = "Fuse"
boolean25.addObjects([body25])
doc.recompute()

boolean26 = body33.newObject("PartDesign::Boolean", "Boolean025")
boolean26.Type = "Fuse"
boolean26.addObjects([body27])
doc.recompute()

boolean27 = body33.newObject("PartDesign::Boolean", "Boolean026")
boolean27.Type = "Fuse"
boolean27.addObjects([body28])
doc.recompute()

boolean28 = body33.newObject("PartDesign::Boolean", "Boolean027")
boolean28.Type = "Fuse"
boolean28.addObjects([body30])
doc.recompute()

boolean29 = body33.newObject("PartDesign::Boolean", "Boolean028")
boolean29.Type = "Fuse"
boolean29.addObjects([body31])
body34 = doc.addObject("PartDesign::Body", "Body033")
body34.AllowCompound = True
doc.recompute()

body33.Placement = App.Placement(App.Vector(0, 0, 0), App.Rotation(App.Vector(0, 0, 1), 22.5))
boolean30 = body34.newObject("PartDesign::Boolean", "Boolean029")
boolean30.Type = "Fuse"
boolean30.addObjects([body33])
body35 = doc.addObject("PartDesign::Body", "Body034")

# Sketch on XY plane
sketch25 = body35.newObject("Sketcher::SketchObject", "Sketch024")
sketch25.AttachmentSupport = (doc.getObject("XY_Plane034"), [""])
sketch25.MapMode = "FlatFace"
sketch25.AttachmentOffset = App.Placement(App.Vector(0, 0, -8), App.Rotation())
sketch25.addGeometry([
    Part.Circle(App.Vector(0, 0, 0), App.Vector(0, 0, 1), 46),
    Part.Circle(App.Vector(0, 0, 0), App.Vector(0, 0, 1), 38),
], False)
sketch25.addConstraint([
    Sketcher.Constraint("Coincident", 0, 3, -1, 1),
    Sketcher.Constraint("Coincident", 1, 3, -1, 1),
    Sketcher.Constraint("Diameter", 0, 92.0),
    Sketcher.Constraint("Diameter", 1, 76.0),
])
pad25 = body35.newObject("PartDesign::Pad", "Pad024")
pad25.Profile = sketch25
pad25.Length = 8
doc.recompute()

boolean31 = body35.newObject("PartDesign::Boolean", "Boolean030")
boolean31.Type = "Cut"
boolean31.addObjects([body34])
doc.recompute()

boolean32 = body35.newObject("PartDesign::Boolean", "Boolean031")
boolean32.Type = "Cut"
boolean32.addObjects([body21])
doc.recompute()

boolean33 = body35.newObject("PartDesign::Boolean", "Boolean032")
boolean33.Type = "Cut"
boolean33.addObjects([body8])
doc.recompute()

boolean34 = body35.newObject("PartDesign::Boolean", "Boolean033")
boolean34.Type = "Cut"
boolean34.addObjects([body4])

doc.recompute()
